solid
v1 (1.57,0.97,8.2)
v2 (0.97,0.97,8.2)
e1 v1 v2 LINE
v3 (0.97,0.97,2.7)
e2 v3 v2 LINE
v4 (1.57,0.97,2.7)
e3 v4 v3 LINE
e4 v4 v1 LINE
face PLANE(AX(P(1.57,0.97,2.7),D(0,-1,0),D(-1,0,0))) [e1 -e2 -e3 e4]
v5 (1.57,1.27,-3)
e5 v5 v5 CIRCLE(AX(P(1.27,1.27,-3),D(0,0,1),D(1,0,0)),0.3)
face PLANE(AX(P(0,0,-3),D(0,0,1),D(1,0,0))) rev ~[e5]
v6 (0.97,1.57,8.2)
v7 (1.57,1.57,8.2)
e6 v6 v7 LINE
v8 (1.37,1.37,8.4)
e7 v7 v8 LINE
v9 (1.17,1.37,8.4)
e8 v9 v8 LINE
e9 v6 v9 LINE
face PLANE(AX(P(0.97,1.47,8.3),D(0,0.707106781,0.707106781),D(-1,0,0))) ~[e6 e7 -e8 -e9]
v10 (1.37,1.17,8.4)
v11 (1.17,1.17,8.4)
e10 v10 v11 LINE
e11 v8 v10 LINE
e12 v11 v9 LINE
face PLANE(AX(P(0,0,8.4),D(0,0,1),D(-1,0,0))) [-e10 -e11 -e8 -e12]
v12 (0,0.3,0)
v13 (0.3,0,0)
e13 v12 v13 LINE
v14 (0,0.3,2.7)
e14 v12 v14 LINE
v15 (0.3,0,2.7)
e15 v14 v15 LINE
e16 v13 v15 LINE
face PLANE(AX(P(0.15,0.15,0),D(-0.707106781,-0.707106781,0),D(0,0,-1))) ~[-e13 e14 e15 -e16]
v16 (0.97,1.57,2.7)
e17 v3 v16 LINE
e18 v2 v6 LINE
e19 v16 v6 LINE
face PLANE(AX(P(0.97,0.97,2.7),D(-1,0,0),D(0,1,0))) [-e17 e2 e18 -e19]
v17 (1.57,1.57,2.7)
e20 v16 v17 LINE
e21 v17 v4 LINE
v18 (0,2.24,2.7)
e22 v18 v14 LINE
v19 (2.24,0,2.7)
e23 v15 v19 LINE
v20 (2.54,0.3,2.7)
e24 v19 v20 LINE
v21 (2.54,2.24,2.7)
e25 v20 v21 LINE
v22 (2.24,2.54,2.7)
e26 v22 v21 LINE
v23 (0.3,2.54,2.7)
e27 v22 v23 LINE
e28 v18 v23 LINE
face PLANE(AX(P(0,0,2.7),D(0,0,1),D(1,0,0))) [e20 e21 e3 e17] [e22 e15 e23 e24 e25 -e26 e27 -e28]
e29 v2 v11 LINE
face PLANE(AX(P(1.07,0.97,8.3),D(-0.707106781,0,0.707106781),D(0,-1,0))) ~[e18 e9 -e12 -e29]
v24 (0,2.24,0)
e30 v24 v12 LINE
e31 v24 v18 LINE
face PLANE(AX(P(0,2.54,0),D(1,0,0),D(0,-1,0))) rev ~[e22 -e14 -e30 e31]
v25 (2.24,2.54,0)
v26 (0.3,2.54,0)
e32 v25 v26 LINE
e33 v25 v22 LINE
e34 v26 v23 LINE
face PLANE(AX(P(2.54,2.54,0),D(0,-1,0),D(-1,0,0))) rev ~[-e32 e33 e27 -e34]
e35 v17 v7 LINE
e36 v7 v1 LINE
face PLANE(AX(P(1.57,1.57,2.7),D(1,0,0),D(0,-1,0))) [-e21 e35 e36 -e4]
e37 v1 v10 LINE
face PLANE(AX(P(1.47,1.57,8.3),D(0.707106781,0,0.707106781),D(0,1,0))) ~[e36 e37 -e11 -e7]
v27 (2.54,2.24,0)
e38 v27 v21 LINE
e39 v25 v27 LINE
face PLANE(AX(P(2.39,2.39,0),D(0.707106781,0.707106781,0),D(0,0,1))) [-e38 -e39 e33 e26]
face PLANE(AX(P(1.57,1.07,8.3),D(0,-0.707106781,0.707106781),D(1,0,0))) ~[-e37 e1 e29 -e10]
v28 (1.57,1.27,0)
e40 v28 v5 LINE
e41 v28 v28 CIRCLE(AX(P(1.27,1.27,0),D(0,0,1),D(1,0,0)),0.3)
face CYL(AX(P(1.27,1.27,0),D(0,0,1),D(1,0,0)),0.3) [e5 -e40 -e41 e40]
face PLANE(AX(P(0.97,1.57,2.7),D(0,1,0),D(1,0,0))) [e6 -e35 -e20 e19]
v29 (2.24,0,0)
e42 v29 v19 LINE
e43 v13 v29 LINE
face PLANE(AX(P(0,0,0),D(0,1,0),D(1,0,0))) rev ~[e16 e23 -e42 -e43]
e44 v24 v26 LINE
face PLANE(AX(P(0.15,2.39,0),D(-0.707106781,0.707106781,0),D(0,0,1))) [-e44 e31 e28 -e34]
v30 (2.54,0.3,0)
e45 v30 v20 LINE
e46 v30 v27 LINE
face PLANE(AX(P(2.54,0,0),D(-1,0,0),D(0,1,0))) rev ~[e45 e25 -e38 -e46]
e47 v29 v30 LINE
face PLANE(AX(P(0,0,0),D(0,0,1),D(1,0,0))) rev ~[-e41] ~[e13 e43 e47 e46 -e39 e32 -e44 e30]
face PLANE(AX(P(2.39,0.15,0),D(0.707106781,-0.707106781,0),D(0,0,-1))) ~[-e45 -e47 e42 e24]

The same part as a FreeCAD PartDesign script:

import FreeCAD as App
import Part
import Sketcher

V = App.Vector
Q = App.Units.Quantity


def edges_at(feature, points):
    """Names of the edges that pass closest to the given points."""
    edges = feature.Shape.Edges
    near = lambda p: min(range(len(edges)), key=lambda i: edges[i].distToShape(Part.Vertex(*p))[0])
    return sorted({f"Edge{near(p) + 1}" for p in points})

doc = App.newDocument("Part")
body = doc.addObject("PartDesign::Body", "Body")

sketch1 = body.newObject("Sketcher::SketchObject", "Sketch")
sketch1.AttachmentSupport = (doc.getObject("XY_Plane"), [""])
sketch1.MapMode = "FlatFace"
sketch1.addGeometry(Part.LineSegment(V(0, 2.5, 0), V(0, 0, 0)), False)
sketch1.addGeometry(Part.LineSegment(V(0, 0, 0), V(2.5, 0, 0)), False)
sketch1.addGeometry(Part.LineSegment(V(2.5, 0, 0), V(2.5, 2.5, 0)), False)
sketch1.addGeometry(Part.LineSegment(V(2.5, 2.5, 0), V(0, 2.5, 0)), False)
sketch1.addConstraint(Sketcher.Constraint("Coincident", 0, 2, 1, 1))
sketch1.addConstraint(Sketcher.Constraint("Coincident", 1, 2, 2, 1))
sketch1.addConstraint(Sketcher.Constraint("Coincident", 2, 2, 3, 1))
sketch1.addConstraint(Sketcher.Constraint("Coincident", 3, 2, 0, 1))
sketch1.addConstraint(Sketcher.Constraint("Vertical", 0))
sketch1.addConstraint(Sketcher.Constraint("Horizontal", 1))
sketch1.addConstraint(Sketcher.Constraint("Vertical", 2))
sketch1.addConstraint(Sketcher.Constraint("Horizontal", 3))
sketch1.addConstraint(Sketcher.Constraint("Coincident", 0, 2, -1, 1))
sketch1.addConstraint(Sketcher.Constraint("Equal", 3, 0))
sketch1.addConstraint(Sketcher.Constraint("DistanceX", 1, 1, 1, 2, Q("2.54 mm")))
pad1 = body.newObject("PartDesign::Pad", "Pad")
pad1.Profile = sketch1
pad1.Length = 2.7

sketch2 = body.newObject("Sketcher::SketchObject", "Sketch001")
sketch2.AttachmentSupport = (doc.getObject("XY_Plane"), [""])
sketch2.MapMode = "FlatFace"
sketch2.AttachmentOffset = App.Placement(V(0, 0, 2.7), App.Rotation())
sketch2.addGeometry(Part.LineSegment(V(1.6, 1.6, 0), V(1, 1.6, 0)), False)
sketch2.addGeometry(Part.LineSegment(V(1, 1.6, 0), V(1, 1, 0)), False)
sketch2.addGeometry(Part.LineSegment(V(1, 1, 0), V(1.6, 1, 0)), False)
sketch2.addGeometry(Part.LineSegment(V(1.6, 1, 0), V(1.6, 1.6, 0)), False)
sketch2.addConstraint(Sketcher.Constraint("Coincident", 0, 2, 1, 1))
sketch2.addConstraint(Sketcher.Constraint("Coincident", 1, 2, 2, 1))
sketch2.addConstraint(Sketcher.Constraint("Coincident", 2, 2, 3, 1))
sketch2.addConstraint(Sketcher.Constraint("Coincident", 3, 2, 0, 1))
sketch2.addConstraint(Sketcher.Constraint("Horizontal", 0))
sketch2.addConstraint(Sketcher.Constraint("Vertical", 1))
sketch2.addConstraint(Sketcher.Constraint("Horizontal", 2))
sketch2.addConstraint(Sketcher.Constraint("Vertical", 3))
sketch2.addConstraint(Sketcher.Constraint("Equal", 2, 1))
sketch2.addConstraint(Sketcher.Constraint("DistanceX", 0, 2, 0, 1, Q("0.6 mm")))
sketch2.addConstraint(Sketcher.Constraint("DistanceX", -1, 1, 0, 2, Q("0.97 mm")))
sketch2.addConstraint(Sketcher.Constraint("DistanceY", -1, 1, 1, 2, Q("0.97 mm")))
pad2 = body.newObject("PartDesign::Pad", "Pad001")
pad2.Profile = sketch2
pad2.Length = 5.7
doc.recompute()

chamfer = body.newObject("PartDesign::Chamfer", "Chamfer")
chamfer.Base = (pad2, edges_at(pad2, [
    (1.27, 0.97, 8.4),
    (1.57, 1.27, 8.4),
    (1.27, 1.57, 8.4),
    (0.97, 1.27, 8.4),
]))
chamfer.Size = 0.2

sketch3 = body.newObject("Sketcher::SketchObject", "Sketch002")
sketch3.AttachmentSupport = (doc.getObject("XY_Plane"), [""])
sketch3.MapMode = "FlatFace"
sketch3.addGeometry(Part.Circle(V(1.27, 1.27, 0), V(0, 0, 1), 0.3), False)
sketch3.addConstraint(Sketcher.Constraint("Diameter", 0, Q("0.6 mm")))
sketch3.addConstraint(Sketcher.Constraint("DistanceX", -1, 1, 0, 3, Q("1.27 mm")))
sketch3.addConstraint(Sketcher.Constraint("DistanceY", -1, 1, 0, 3, Q("1.27 mm")))
pad3 = body.newObject("PartDesign::Pad", "Pad002")
pad3.Profile = sketch3
pad3.Length = 3
pad3.Reversed = True
doc.recompute()

chamfer2 = body.newObject("PartDesign::Chamfer", "Chamfer001")
chamfer2.Base = (pad3, edges_at(pad3, [
    (0, 2.54, 1.35),
    (0, 0, 1.35),
    (2.54, 0, 1.35),
    (2.54, 2.54, 1.35),
]))
chamfer2.Size = 0.3

doc.recompute()
